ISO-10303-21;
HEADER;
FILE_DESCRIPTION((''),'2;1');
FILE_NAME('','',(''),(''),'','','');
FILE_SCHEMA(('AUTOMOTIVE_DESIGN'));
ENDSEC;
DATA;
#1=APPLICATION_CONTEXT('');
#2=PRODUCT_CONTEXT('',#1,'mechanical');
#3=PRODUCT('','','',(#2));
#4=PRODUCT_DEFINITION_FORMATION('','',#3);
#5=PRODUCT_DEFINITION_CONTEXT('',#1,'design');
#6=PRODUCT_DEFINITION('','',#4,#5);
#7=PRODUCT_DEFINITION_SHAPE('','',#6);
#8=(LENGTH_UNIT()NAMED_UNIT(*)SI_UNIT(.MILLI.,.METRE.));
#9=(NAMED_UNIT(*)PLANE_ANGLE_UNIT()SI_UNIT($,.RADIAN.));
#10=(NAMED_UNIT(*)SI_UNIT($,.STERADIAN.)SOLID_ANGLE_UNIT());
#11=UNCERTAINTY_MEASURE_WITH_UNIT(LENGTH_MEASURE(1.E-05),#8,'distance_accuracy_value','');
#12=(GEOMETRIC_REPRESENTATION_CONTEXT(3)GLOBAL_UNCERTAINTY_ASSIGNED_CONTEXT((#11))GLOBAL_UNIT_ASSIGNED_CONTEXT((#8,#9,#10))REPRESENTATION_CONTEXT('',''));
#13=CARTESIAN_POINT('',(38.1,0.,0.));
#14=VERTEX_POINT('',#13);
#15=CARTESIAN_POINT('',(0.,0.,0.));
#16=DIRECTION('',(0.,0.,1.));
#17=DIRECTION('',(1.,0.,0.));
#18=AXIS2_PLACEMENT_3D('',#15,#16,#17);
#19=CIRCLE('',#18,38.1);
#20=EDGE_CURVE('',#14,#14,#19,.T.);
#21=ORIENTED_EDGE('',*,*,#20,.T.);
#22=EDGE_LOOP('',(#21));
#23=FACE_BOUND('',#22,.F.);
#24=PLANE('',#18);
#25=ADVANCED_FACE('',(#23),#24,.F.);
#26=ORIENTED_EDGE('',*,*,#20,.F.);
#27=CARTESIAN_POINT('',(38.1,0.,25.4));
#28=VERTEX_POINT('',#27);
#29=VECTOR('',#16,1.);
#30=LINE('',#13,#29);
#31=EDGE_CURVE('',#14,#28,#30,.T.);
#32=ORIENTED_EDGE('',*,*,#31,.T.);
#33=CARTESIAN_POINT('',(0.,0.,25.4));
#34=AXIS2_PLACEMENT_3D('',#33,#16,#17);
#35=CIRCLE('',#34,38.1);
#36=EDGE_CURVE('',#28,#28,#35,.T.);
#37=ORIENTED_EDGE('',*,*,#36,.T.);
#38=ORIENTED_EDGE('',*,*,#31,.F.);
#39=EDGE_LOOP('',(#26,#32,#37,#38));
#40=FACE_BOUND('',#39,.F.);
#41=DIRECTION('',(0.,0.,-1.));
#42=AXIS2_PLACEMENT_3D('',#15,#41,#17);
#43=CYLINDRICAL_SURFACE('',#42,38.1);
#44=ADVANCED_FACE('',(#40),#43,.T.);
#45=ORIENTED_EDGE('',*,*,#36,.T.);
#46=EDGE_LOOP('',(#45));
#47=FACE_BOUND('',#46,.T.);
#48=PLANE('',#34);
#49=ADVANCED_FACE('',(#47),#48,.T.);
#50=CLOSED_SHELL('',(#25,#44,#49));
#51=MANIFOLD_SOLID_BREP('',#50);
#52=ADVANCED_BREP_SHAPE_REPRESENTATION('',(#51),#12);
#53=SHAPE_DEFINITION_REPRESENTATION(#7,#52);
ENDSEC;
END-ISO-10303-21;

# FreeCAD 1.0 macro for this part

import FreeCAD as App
import Part
import Sketcher

V = App.Vector
Q = App.Units.Quantity

doc = App.newDocument("Part")
params = doc.addObject("Spreadsheet::Sheet", "Params")
for row, (alias, value) in enumerate([
    ("sketch1_diameter", "3 in"),
    ("pad1_length", "1 in"),
], start=1):
    params.set(f"A{row}", alias)
    params.set(f"B{row}", "=" + value)
    params.setAlias(f"B{row}", alias)

body = doc.addObject("PartDesign::Body", "Body")

# Sketch on XY plane
sketch1 = body.newObject("Sketcher::SketchObject", "Sketch")
sketch1.AttachmentSupport = (doc.getObject("XY_Plane"), [""])
sketch1.MapMode = "FlatFace"
sketch1.addGeometry(Part.Circle(V(0, 0, 0), V(0, 0, 1), 38), False)
sketch1.addConstraint(Sketcher.Constraint("Coincident", 0, 3, -1, 1))
sketch1.addConstraint(Sketcher.Constraint("Diameter", 0, Q("3 in")))
sketch1.setExpression("Constraints[1]", "Params.sketch1_diameter")
pad1 = body.newObject("PartDesign::Pad", "Pad")
pad1.Profile = sketch1
pad1.setExpression("Length", "Params.pad1_length")

doc.recompute()
